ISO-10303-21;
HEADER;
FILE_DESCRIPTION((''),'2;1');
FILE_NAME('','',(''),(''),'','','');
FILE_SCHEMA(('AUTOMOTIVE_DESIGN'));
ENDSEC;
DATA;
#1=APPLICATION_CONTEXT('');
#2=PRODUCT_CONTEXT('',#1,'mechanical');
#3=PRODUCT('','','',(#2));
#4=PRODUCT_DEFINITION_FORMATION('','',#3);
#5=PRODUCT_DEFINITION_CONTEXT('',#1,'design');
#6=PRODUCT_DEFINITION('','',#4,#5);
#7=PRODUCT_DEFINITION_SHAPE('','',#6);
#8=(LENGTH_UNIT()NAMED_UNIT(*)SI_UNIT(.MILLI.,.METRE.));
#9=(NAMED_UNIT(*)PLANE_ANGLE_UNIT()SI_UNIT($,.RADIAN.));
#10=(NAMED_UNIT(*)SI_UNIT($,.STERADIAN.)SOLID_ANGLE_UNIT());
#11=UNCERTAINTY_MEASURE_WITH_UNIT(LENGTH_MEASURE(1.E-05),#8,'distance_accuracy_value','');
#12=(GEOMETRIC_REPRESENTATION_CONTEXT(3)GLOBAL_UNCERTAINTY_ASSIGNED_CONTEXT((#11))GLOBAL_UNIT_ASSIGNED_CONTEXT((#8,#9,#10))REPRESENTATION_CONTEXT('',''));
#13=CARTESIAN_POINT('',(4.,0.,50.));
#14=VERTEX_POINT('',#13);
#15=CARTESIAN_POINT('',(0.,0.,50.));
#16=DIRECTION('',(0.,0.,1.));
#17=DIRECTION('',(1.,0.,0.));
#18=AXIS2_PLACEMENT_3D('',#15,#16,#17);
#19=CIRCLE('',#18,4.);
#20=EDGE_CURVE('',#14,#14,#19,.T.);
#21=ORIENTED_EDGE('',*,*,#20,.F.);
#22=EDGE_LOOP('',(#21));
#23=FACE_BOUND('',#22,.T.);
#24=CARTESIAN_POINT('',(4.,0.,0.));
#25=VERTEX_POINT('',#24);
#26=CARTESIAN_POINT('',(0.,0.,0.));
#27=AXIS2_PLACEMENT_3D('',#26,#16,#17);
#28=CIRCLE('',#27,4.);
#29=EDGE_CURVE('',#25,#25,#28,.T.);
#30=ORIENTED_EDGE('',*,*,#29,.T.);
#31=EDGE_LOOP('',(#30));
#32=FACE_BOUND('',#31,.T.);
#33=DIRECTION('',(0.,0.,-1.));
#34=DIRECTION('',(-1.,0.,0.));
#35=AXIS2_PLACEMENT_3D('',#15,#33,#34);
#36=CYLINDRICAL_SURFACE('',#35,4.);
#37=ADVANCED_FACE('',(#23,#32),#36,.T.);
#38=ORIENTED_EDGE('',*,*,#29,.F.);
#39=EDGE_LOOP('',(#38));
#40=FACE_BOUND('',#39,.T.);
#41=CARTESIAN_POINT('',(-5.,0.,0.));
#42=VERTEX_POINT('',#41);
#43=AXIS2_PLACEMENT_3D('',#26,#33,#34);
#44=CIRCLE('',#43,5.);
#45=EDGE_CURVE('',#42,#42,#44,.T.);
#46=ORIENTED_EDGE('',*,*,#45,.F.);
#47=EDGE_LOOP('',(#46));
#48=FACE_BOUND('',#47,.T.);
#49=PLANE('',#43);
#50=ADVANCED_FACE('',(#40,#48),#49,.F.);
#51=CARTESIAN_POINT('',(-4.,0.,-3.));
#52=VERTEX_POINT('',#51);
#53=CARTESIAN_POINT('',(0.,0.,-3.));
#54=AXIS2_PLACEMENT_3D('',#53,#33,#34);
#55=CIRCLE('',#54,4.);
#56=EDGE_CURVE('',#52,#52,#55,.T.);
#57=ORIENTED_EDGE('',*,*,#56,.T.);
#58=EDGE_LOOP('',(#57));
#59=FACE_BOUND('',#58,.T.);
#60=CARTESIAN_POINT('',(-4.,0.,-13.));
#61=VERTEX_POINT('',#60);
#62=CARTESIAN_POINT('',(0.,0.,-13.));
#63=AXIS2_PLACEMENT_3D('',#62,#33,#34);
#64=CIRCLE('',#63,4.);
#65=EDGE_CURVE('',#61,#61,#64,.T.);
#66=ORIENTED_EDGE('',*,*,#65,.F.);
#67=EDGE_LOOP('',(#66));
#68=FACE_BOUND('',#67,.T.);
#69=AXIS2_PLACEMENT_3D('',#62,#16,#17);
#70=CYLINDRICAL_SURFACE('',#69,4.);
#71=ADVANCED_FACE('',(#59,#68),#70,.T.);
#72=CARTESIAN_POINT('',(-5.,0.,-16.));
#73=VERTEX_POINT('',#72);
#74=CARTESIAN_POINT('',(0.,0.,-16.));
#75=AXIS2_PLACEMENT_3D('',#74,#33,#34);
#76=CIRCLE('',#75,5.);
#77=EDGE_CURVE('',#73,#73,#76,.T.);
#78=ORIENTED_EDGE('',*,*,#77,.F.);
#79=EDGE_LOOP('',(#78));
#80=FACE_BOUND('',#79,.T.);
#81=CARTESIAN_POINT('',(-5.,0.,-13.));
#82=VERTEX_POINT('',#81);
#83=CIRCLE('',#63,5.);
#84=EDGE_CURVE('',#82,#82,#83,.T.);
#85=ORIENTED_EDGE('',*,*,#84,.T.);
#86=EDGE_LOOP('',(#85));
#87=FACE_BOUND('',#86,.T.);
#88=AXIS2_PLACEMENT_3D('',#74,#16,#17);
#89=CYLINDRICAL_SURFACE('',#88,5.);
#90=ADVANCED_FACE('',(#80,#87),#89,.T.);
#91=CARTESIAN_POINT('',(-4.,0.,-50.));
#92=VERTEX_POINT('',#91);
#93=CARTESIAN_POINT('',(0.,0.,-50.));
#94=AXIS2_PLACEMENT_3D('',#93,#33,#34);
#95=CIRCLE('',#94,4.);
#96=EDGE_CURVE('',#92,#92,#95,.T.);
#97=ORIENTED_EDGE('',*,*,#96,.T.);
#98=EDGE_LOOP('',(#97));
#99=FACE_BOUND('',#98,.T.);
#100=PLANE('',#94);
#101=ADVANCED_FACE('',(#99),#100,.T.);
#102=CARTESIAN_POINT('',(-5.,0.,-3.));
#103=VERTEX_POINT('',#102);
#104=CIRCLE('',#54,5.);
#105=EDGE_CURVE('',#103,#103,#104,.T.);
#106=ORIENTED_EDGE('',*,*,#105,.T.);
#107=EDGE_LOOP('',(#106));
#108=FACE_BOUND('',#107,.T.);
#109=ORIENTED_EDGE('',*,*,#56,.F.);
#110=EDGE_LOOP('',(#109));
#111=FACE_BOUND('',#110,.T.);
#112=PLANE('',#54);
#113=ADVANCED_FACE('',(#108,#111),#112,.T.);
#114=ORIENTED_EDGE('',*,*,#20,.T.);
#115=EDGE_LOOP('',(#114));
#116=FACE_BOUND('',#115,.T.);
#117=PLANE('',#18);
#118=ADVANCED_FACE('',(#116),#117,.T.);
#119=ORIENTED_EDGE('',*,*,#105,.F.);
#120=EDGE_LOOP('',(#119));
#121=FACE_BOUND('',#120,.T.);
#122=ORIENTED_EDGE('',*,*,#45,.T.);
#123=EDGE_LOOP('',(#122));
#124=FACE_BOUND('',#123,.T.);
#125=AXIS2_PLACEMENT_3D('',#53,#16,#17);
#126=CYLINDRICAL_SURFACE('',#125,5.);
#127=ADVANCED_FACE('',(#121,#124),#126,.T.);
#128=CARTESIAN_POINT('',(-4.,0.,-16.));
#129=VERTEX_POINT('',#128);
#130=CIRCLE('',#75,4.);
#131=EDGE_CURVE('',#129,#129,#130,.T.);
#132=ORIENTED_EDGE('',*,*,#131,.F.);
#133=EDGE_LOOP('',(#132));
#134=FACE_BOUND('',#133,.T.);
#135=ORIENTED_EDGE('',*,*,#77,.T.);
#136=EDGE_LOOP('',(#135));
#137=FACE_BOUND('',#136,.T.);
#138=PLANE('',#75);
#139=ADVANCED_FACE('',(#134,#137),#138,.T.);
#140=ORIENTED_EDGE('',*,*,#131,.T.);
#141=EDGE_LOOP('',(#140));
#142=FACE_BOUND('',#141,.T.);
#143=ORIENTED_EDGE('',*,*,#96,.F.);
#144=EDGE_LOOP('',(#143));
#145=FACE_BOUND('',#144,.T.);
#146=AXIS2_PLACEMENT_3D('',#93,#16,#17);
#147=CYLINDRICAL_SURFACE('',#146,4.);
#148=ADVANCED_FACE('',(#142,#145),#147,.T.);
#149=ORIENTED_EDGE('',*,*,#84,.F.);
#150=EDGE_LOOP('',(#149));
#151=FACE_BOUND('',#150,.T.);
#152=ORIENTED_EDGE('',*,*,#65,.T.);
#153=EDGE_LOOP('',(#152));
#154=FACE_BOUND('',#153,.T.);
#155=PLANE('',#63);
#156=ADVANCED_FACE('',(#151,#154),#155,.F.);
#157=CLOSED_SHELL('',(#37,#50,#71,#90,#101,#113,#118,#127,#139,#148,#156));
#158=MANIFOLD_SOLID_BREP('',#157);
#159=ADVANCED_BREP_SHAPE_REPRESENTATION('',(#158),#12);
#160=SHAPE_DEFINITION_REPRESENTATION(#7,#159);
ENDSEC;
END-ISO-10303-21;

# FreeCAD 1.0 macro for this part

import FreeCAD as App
import Part
import Sketcher

doc = App.newDocument("Part")
body = doc.addObject("PartDesign::Body", "Body")

# Sketch on XY plane
sketch1 = body.newObject("Sketcher::SketchObject", "Sketch")
sketch1.AttachmentSupport = (doc.getObject("XY_Plane"), [""])
sketch1.MapMode = "FlatFace"
sketch1.addGeometry(Part.Circle(App.Vector(0, 0, 0), App.Vector(0, 0, 1), 4), False)
sketch1.addConstraint([
    Sketcher.Constraint("Coincident", 0, 3, -1, 1),
    Sketcher.Constraint("Diameter", 0, 8.0),
])
pad1 = body.newObject("PartDesign::Pad", "Pad")
pad1.Profile = sketch1
pad1.Length = 50

# Sketch on XY plane
sketch2 = body.newObject("Sketcher::SketchObject", "Sketch001")
sketch2.AttachmentSupport = (doc.getObject("XY_Plane"), [""])
sketch2.MapMode = "FlatFace"
sketch2.addGeometry(Part.Circle(App.Vector(0, 0, 0), App.Vector(0, 0, 1), 5), False)
sketch2.addConstraint([
    Sketcher.Constraint("Coincident", 0, 3, -1, 1),
    Sketcher.Constraint("Diameter", 0, 10.0),
])
pad2 = body.newObject("PartDesign::Pad", "Pad001")
pad2.Profile = sketch2
pad2.Length = 3
pad2.Reversed = True

# Sketch on XY plane
sketch3 = body.newObject("Sketcher::SketchObject", "Sketch002")
sketch3.AttachmentSupport = (doc.getObject("XY_Plane"), [""])
sketch3.MapMode = "FlatFace"
sketch3.AttachmentOffset = App.Placement(App.Vector(0, 0, -3), App.Rotation())
sketch3.addGeometry(Part.Circle(App.Vector(0, 0, 0), App.Vector(0, 0, 1), 4), False)
sketch3.addConstraint([
    Sketcher.Constraint("Coincident", 0, 3, -1, 1),
    Sketcher.Constraint("Diameter", 0, 8.0),
])
pad3 = body.newObject("PartDesign::Pad", "Pad002")
pad3.Profile = sketch3
pad3.Length = 10
pad3.Reversed = True

# Sketch on XY plane
sketch4 = body.newObject("Sketcher::SketchObject", "Sketch003")
sketch4.AttachmentSupport = (doc.getObject("XY_Plane"), [""])
sketch4.MapMode = "FlatFace"
sketch4.AttachmentOffset = App.Placement(App.Vector(0, 0, -13), App.Rotation())
sketch4.addGeometry(Part.Circle(App.Vector(0, 0, 0), App.Vector(0, 0, 1), 5), False)
sketch4.addConstraint([
    Sketcher.Constraint("Coincident", 0, 3, -1, 1),
    Sketcher.Constraint("Diameter", 0, 10.0),
])
pad4 = body.newObject("PartDesign::Pad", "Pad003")
pad4.Profile = sketch4
pad4.Length = 3
pad4.Reversed = True

# Sketch on XY plane
sketch5 = body.newObject("Sketcher::SketchObject", "Sketch004")
sketch5.AttachmentSupport = (doc.getObject("XY_Plane"), [""])
sketch5.MapMode = "FlatFace"
sketch5.AttachmentOffset = App.Placement(App.Vector(0, 0, -16), App.Rotation())
sketch5.addGeometry(Part.Circle(App.Vector(0, 0, 0), App.Vector(0, 0, 1), 4), False)
sketch5.addConstraint([
    Sketcher.Constraint("Coincident", 0, 3, -1, 1),
    Sketcher.Constraint("Diameter", 0, 8.0),
])
pad5 = body.newObject("PartDesign::Pad", "Pad004")
pad5.Profile = sketch5
pad5.Length = 34
pad5.Reversed = True

doc.recompute()
